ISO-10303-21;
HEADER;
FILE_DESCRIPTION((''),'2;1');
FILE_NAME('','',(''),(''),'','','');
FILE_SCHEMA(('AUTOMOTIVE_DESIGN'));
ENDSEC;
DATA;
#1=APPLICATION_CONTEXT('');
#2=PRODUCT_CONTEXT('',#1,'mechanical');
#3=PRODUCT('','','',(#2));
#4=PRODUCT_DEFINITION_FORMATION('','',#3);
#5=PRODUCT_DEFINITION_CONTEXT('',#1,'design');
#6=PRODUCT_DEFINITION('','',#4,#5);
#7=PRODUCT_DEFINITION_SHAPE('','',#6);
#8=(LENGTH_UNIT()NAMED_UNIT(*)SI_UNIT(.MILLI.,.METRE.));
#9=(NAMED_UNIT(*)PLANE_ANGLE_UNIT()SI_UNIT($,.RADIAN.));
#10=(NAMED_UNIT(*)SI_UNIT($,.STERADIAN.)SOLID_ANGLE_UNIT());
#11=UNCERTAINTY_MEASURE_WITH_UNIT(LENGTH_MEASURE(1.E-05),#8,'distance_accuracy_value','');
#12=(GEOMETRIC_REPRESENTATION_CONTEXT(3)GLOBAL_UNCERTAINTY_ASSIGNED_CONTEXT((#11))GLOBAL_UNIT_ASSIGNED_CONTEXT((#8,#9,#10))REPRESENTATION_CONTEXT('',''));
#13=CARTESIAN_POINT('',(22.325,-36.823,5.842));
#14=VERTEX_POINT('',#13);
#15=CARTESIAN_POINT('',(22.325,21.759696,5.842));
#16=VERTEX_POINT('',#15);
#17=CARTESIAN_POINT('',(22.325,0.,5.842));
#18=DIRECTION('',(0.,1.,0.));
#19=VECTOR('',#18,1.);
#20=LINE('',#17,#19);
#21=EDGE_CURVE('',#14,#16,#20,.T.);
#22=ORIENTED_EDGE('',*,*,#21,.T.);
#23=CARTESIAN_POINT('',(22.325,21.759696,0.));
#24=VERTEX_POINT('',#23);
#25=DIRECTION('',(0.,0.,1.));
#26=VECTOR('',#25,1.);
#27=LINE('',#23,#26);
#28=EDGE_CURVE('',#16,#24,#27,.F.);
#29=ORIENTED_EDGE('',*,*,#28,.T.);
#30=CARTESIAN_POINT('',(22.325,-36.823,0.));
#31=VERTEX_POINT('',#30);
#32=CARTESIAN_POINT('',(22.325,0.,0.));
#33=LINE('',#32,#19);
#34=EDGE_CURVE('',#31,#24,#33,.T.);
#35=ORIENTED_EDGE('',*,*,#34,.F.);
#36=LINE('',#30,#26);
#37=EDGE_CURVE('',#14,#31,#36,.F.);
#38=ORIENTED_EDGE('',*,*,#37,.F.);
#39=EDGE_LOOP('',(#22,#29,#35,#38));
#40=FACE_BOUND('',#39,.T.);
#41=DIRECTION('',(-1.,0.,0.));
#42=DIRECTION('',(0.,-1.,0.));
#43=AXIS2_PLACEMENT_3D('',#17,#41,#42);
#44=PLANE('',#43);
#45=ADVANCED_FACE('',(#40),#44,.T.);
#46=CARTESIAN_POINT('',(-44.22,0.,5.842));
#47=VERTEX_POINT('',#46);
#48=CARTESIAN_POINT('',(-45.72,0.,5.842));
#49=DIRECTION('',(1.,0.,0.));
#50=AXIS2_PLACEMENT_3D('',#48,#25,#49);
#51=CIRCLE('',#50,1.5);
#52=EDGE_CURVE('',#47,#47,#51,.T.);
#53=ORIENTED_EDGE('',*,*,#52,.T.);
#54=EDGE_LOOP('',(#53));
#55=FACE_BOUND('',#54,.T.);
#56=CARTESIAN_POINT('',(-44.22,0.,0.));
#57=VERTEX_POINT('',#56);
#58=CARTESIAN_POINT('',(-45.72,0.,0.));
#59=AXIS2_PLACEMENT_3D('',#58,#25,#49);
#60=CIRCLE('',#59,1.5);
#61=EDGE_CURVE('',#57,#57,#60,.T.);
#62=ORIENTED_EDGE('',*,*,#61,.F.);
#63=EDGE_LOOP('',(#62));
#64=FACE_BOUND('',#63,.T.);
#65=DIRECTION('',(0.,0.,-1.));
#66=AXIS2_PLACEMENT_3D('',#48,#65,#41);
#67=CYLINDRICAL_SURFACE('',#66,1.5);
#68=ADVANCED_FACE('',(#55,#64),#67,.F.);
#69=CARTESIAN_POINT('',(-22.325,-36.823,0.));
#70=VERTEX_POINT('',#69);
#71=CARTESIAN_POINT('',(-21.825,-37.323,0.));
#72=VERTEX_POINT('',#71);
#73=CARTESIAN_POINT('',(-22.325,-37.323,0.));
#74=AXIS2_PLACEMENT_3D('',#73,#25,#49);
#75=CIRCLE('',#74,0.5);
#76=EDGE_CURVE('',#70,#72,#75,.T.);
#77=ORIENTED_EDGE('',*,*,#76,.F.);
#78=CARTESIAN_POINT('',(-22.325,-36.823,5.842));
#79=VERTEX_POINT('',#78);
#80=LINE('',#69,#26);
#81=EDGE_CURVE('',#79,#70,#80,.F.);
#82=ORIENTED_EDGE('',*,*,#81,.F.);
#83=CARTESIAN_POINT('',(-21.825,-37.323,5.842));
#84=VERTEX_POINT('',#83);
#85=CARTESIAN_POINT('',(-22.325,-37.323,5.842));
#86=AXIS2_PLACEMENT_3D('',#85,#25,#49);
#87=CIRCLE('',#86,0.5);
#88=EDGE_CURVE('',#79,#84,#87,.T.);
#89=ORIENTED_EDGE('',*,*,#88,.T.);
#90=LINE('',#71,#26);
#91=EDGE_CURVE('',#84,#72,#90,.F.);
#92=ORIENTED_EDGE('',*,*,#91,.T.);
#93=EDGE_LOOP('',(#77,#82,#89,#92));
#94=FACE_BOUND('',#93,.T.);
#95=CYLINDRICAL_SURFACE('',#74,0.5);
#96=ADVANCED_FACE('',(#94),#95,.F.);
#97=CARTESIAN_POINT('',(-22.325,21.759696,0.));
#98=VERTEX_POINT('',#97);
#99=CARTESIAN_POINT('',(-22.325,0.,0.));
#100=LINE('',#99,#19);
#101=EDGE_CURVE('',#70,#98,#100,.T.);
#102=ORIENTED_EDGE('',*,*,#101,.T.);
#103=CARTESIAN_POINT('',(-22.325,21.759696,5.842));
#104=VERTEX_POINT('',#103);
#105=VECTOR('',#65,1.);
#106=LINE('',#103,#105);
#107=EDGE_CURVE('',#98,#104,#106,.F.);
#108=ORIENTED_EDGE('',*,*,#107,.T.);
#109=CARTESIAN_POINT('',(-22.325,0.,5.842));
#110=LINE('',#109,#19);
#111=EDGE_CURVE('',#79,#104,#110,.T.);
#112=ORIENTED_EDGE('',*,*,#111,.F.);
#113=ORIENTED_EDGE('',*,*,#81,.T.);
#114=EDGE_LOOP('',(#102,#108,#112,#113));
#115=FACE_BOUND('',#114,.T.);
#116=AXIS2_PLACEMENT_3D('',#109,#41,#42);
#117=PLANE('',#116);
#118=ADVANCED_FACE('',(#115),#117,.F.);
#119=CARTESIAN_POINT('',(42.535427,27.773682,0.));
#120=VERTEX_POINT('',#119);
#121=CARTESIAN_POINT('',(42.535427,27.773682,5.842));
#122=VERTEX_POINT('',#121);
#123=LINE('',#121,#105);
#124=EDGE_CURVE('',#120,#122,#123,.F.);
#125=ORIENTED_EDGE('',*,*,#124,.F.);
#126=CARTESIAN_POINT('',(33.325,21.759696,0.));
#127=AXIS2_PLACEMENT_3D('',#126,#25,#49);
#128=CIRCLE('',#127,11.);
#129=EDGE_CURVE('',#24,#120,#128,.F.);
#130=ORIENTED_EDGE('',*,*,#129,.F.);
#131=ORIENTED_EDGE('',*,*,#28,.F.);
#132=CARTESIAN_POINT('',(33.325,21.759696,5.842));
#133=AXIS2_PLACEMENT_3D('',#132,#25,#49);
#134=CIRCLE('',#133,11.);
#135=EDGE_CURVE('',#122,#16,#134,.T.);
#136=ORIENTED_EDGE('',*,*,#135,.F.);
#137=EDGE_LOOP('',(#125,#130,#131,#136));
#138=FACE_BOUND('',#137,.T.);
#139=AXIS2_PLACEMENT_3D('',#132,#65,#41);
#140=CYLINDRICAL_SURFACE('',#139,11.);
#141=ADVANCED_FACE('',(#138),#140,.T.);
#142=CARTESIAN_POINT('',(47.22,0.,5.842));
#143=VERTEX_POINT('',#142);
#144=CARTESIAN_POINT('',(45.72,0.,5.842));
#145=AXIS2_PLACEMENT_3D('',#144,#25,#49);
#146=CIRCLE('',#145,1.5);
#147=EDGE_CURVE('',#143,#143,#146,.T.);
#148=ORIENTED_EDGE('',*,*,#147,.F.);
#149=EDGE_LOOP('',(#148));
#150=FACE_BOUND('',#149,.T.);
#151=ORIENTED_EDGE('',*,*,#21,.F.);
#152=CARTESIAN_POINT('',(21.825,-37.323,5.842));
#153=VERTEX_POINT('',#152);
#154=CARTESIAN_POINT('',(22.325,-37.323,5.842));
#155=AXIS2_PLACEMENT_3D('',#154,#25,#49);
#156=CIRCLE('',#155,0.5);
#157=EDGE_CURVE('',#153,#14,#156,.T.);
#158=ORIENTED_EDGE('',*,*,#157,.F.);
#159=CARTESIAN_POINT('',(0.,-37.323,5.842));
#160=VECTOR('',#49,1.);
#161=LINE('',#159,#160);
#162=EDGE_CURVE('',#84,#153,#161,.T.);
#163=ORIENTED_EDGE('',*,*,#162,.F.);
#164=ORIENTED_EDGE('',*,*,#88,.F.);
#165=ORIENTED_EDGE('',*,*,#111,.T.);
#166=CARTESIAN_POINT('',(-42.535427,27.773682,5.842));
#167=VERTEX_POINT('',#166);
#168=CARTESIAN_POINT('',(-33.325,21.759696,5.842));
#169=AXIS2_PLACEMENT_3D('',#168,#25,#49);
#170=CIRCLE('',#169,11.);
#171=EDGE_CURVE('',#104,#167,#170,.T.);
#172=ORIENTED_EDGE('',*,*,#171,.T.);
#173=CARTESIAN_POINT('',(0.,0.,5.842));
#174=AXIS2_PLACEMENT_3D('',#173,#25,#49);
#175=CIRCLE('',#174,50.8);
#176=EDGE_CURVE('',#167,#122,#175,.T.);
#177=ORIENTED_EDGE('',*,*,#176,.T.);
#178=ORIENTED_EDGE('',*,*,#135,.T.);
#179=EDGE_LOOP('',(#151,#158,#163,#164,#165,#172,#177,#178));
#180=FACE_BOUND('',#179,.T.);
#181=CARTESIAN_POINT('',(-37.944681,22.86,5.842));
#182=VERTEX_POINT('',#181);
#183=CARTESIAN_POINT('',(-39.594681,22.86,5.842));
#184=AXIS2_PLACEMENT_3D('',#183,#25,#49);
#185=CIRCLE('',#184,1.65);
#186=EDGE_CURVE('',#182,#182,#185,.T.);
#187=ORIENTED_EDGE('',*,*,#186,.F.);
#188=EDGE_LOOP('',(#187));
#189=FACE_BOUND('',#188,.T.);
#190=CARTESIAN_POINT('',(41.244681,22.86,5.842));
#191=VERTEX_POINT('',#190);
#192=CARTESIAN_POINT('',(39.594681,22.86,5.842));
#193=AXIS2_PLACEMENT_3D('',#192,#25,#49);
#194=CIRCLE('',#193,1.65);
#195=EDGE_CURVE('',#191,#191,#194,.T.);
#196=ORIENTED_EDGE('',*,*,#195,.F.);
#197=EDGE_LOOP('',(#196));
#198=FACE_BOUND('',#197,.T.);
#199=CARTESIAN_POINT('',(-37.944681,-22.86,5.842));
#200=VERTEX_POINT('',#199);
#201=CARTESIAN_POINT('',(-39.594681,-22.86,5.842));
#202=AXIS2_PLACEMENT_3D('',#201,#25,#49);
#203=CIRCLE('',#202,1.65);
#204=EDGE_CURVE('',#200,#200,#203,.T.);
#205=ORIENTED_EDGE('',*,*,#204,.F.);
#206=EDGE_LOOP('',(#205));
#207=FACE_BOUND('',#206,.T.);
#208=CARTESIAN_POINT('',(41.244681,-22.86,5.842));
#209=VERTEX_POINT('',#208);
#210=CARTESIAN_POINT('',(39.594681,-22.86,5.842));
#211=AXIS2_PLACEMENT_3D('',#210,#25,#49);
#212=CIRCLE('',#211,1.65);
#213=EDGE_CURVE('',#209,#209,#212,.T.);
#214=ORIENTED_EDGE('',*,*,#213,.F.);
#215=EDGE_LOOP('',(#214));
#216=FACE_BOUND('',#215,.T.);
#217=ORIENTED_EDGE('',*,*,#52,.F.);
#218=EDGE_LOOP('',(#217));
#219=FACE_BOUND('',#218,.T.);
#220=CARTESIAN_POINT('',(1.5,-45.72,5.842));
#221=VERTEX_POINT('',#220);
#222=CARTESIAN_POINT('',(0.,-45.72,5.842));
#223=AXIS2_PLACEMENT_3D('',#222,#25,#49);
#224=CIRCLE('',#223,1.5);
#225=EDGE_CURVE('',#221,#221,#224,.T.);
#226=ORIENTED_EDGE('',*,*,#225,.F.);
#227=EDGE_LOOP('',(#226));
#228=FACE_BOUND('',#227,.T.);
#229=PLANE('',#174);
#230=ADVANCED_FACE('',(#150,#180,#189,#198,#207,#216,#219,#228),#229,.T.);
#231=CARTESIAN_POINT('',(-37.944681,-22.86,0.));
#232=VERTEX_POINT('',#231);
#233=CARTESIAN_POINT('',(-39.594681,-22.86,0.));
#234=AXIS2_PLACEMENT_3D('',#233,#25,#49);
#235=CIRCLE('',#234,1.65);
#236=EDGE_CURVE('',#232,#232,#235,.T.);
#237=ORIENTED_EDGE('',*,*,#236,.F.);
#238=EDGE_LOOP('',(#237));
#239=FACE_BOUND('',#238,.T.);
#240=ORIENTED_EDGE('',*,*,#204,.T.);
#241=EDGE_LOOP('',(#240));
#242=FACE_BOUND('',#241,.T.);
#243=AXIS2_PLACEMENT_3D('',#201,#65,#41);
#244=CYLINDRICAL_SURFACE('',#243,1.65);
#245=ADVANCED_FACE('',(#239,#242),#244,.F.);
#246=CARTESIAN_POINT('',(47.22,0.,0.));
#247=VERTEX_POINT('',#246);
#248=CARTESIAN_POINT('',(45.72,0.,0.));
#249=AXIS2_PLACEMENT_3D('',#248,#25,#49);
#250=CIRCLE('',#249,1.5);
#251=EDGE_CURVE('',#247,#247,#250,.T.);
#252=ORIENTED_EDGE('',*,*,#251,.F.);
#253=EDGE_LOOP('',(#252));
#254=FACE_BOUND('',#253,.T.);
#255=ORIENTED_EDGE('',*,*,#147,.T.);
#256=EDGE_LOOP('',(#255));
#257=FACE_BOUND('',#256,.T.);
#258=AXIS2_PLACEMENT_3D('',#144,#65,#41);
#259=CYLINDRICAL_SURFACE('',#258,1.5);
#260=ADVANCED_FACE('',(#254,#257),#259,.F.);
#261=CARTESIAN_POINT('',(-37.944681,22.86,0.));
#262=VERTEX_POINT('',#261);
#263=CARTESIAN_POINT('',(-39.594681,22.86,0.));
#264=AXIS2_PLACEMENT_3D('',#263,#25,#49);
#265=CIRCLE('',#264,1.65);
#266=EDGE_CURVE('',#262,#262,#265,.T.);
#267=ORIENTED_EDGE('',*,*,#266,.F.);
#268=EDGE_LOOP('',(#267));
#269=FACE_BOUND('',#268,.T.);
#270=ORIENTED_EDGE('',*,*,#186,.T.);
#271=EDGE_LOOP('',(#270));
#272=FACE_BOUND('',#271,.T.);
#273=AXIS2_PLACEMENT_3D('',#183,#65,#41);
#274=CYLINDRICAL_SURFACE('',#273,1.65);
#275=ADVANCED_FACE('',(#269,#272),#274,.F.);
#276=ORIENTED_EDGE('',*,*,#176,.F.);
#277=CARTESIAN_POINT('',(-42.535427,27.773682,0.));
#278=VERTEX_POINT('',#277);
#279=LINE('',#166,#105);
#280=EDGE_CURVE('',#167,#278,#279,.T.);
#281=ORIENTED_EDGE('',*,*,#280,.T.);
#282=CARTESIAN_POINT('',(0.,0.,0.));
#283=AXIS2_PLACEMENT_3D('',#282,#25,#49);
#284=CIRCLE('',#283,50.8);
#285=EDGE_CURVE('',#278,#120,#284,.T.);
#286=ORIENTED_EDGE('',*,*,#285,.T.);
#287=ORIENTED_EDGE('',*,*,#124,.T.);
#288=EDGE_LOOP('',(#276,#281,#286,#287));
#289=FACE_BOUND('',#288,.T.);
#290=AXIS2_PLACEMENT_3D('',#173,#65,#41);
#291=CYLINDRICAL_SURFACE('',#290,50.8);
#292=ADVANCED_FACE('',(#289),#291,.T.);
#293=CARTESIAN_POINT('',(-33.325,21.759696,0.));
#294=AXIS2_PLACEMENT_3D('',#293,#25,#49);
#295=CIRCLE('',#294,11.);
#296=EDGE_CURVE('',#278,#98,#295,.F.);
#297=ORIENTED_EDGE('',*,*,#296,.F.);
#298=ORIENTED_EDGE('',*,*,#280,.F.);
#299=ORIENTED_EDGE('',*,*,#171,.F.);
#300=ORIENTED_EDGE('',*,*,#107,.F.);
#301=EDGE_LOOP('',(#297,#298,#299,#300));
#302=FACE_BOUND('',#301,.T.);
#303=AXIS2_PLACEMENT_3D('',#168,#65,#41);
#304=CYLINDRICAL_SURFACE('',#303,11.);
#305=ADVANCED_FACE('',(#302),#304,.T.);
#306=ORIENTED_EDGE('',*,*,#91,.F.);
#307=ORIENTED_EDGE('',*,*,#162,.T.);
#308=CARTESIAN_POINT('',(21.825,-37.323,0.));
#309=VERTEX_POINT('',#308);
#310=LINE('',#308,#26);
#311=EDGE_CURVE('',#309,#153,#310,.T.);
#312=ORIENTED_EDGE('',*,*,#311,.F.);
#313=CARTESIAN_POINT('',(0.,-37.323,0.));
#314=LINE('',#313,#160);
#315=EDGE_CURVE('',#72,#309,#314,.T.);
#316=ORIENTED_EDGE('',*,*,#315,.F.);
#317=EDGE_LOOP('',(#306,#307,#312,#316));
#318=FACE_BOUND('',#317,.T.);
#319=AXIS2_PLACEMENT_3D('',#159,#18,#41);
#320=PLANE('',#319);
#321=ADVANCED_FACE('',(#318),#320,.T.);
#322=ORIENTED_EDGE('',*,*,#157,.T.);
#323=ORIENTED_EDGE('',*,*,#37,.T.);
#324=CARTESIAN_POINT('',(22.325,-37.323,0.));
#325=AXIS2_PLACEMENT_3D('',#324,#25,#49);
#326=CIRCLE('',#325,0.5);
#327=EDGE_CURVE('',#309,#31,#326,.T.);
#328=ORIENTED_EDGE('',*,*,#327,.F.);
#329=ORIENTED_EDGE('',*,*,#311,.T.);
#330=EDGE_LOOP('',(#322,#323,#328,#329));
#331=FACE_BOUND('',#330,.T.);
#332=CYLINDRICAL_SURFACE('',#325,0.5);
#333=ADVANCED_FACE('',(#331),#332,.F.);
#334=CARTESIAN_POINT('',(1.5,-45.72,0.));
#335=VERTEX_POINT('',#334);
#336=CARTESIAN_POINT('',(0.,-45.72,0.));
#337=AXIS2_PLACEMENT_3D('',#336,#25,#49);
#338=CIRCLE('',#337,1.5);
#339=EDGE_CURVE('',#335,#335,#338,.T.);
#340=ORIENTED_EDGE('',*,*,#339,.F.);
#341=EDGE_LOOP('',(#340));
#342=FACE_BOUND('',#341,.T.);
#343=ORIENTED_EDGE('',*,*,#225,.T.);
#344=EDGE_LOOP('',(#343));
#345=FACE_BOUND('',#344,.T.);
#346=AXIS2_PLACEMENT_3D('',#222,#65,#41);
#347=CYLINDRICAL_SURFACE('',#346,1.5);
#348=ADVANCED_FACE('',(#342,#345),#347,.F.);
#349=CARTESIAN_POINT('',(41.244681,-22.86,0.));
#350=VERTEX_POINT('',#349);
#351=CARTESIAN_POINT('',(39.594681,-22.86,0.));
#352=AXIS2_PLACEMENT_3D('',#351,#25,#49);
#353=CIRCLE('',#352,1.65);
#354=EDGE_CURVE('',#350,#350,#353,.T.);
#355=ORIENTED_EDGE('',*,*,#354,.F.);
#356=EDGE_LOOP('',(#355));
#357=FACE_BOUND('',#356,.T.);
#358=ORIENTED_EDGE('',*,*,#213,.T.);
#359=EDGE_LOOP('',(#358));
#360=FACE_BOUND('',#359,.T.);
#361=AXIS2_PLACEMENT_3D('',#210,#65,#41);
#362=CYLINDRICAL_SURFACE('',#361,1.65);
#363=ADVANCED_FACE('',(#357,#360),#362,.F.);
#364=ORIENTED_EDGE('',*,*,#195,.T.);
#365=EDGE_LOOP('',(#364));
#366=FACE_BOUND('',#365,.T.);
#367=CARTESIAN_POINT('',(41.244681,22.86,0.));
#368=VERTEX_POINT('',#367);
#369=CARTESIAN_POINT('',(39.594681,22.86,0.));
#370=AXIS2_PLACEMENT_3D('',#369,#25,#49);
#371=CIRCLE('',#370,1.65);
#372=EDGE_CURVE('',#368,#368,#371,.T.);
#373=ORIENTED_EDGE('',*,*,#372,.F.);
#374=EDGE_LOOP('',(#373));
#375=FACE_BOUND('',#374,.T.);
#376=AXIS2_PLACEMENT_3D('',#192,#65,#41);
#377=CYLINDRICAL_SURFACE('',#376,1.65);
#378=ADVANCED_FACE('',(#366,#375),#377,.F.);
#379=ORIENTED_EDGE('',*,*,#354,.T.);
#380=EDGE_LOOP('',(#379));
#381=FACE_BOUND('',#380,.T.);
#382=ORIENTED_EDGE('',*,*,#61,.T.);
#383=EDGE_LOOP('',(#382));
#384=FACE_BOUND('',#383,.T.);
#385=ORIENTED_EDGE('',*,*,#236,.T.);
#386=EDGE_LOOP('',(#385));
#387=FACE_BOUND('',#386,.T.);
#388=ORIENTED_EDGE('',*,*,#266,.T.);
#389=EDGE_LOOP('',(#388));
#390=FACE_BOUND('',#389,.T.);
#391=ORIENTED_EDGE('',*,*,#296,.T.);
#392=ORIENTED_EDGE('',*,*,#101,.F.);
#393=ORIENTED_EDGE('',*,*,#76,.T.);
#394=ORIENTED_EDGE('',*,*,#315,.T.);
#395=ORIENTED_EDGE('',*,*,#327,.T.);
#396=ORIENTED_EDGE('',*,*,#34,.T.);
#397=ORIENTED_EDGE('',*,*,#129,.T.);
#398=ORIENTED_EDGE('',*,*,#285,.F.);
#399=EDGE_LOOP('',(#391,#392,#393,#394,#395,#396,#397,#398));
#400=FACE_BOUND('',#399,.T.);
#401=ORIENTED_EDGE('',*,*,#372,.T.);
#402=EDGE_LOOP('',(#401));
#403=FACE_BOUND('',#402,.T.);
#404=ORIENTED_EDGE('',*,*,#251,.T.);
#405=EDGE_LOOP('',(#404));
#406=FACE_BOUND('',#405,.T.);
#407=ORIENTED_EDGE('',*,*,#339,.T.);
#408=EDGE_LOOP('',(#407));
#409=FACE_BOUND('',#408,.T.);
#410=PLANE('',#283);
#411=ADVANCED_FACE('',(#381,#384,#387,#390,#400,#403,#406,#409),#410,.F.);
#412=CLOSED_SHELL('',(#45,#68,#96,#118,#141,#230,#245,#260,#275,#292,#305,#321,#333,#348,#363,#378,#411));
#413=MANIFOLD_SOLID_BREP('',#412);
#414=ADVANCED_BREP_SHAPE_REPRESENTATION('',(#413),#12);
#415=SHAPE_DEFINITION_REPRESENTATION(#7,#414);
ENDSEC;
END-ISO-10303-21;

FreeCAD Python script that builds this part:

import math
import FreeCAD as App
import Part
import Sketcher
Q = App.Units.Quantity


def edges_at(feature, points):
    """Names of the edges that pass closest to the given points."""
    edges = feature.Shape.Edges
    near = lambda p: min(range(len(edges)), key=lambda i: edges[i].distToShape(Part.Vertex(*p))[0])
    return sorted({f"Edge{near(p) + 1}" for p in points})

doc = App.newDocument("Part")
body = doc.addObject("PartDesign::Body", "Body")

sketch1 = body.newObject("Sketcher::SketchObject", "Sketch")
sketch1.AttachmentSupport = (doc.getObject("XY_Plane"), [""])
sketch1.MapMode = "FlatFace"
sketch1.addGeometry(Part.LineSegment(App.Vector(22.325, 45.631506, 0), App.Vector(22.325, -37.323, 0)), False)
sketch1.addGeometry(Part.LineSegment(App.Vector(22.325, -37.323, 0), App.Vector(-22.325, -37.323, 0)), False)
sketch1.addGeometry(Part.LineSegment(App.Vector(-22.325, -37.323, 0), App.Vector(-22.325, 45.631506, 0)), False)
sketch1.addGeometry(Part.ArcOfCircle(Part.Circle(App.Vector(0, 0, 0), App.Vector(0, 0, 1), 50.8), math.radians(116.069975), math.radians(423.930025)), False)
sketch1.addGeometry(Part.Circle(App.Vector(0, -45.72, 0), App.Vector(0, 0, 1), 1.5), False)
sketch1.addGeometry(Part.Circle(App.Vector(39.594681, -22.86, 0), App.Vector(0, 0, 1), 1.65), False)
sketch1.addGeometry(Part.Circle(App.Vector(-39.594681, -22.86, 0), App.Vector(0, 0, 1), 1.65), False)
sketch1.addGeometry(Part.Circle(App.Vector(45.72, 0, 0), App.Vector(0, 0, 1), 1.5), False)
sketch1.addGeometry(Part.Circle(App.Vector(39.594681, 22.86, 0), App.Vector(0, 0, 1), 1.65), False)
sketch1.addGeometry(Part.Circle(App.Vector(-45.72, 0, 0), App.Vector(0, 0, 1), 1.5), False)
sketch1.addGeometry(Part.Circle(App.Vector(-39.594681, 22.86, 0), App.Vector(0, 0, 1), 1.65), False)
sketch1.addConstraint(Sketcher.Constraint("Coincident", 0, 2, 1, 1))
sketch1.addConstraint(Sketcher.Constraint("Coincident", 1, 2, 2, 1))
sketch1.addConstraint(Sketcher.Constraint("Coincident", 2, 2, 3, 1))
sketch1.addConstraint(Sketcher.Constraint("Coincident", 3, 2, 0, 1))
sketch1.addConstraint(Sketcher.Constraint("Vertical", 0))
sketch1.addConstraint(Sketcher.Constraint("Horizontal", 1))
sketch1.addConstraint(Sketcher.Constraint("Vertical", 2))
sketch1.addConstraint(Sketcher.Constraint("Coincident", 3, 3, -1, 1))
sketch1.addConstraint(Sketcher.Constraint("Equal", 5, 6))
sketch1.addConstraint(Sketcher.Constraint("Equal", 4, 7))
sketch1.addConstraint(Sketcher.Constraint("Equal", 6, 8))
sketch1.addConstraint(Sketcher.Constraint("Equal", 7, 9))
sketch1.addConstraint(Sketcher.Constraint("Equal", 8, 10))
sketch1.addConstraint(Sketcher.Constraint("Symmetric", 6, 3, 8, 3, -1, 1))
sketch1.addConstraint(Sketcher.Constraint("Symmetric", 7, 3, 9, 3, -1, 1))
sketch1.addConstraint(Sketcher.Constraint("Symmetric", 5, 3, 10, 3, -1, 1))
sketch1.addConstraint(Sketcher.Constraint("Symmetric", 5, 3, 6, 3, -2))
sketch1.addConstraint(Sketcher.Constraint("PointOnObject", 4, 3, -2))
sketch1.addConstraint(Sketcher.Constraint("PointOnObject", 7, 3, -1))
sketch1.addConstraint(Sketcher.Constraint("Horizontal", 2, 2, 3, 2))
sketch1.addConstraint(Sketcher.Constraint("Diameter", 4, Q("3 mm")))
sketch1.addConstraint(Sketcher.Constraint("Diameter", 5, Q("3.3 mm")))
sketch1.addConstraint(Sketcher.Constraint("Radius", 3, Q("50.8 mm")))
sketch1.addConstraint(Sketcher.Constraint("DistanceX", 1, 2, 1, 1, Q("44.65 mm")))
sketch1.addConstraint(Sketcher.Constraint("DistanceY", 4, 3, -1, 1, Q("45.72 mm")))
sketch1.addConstraint(Sketcher.Constraint("DistanceY", 5, 3, -1, 1, Q("22.86 mm")))
sketch1.addConstraint(Sketcher.Constraint("DistanceX", -1, 1, 7, 3, Q("45.72 mm")))
sketch1.addConstraint(Sketcher.Constraint("DistanceY", 0, 2, -1, 1, Q("37.323 mm")))
sketch1.addConstraint(Sketcher.Constraint("DistanceX", -1, 1, 5, 3, Q("39.594681 mm")))
pad1 = body.newObject("PartDesign::Pad", "Pad")
pad1.Profile = sketch1
pad1.Length = 5.842
doc.recompute()

fillet = body.newObject("PartDesign::Fillet", "Fillet")
fillet.Base = (pad1, edges_at(pad1, [(22.325, 45.632, 2.921), (-22.325, 45.632, 2.921)]))
fillet.Radius = 11

sketch2 = body.newObject("Sketcher::SketchObject", "Sketch001")
sketch2.AttachmentSupport = (doc.getObject("XY_Plane"), [""])
sketch2.MapMode = "FlatFace"
sketch2.AttachmentOffset = App.Placement(App.Vector(0, 0, 5.842), App.Rotation())
sketch2.addGeometry(Part.Circle(App.Vector(-22.325, -37.323, 0), App.Vector(0, 0, 1), 0.5), False)
sketch2.addGeometry(Part.Circle(App.Vector(22.325, -37.323, 0), App.Vector(0, 0, 1), 0.5), False)
sketch2.addConstraint(Sketcher.Constraint("Equal", 0, 1))
sketch2.addConstraint(Sketcher.Constraint("Symmetric", 0, 3, 1, 3, -2))
sketch2.addConstraint(Sketcher.Constraint("Diameter", 0, Q("1 mm")))
sketch2.addConstraint(Sketcher.Constraint("DistanceX", 0, 3, 1, 3, Q("44.65 mm")))
sketch2.addConstraint(Sketcher.Constraint("DistanceY", 0, 3, -1, 1, Q("37.323 mm")))
pocket1 = body.newObject("PartDesign::Pocket", "Pocket")
pocket1.Profile = sketch2
pocket1.Type = "ThroughAll"

doc.recompute()
